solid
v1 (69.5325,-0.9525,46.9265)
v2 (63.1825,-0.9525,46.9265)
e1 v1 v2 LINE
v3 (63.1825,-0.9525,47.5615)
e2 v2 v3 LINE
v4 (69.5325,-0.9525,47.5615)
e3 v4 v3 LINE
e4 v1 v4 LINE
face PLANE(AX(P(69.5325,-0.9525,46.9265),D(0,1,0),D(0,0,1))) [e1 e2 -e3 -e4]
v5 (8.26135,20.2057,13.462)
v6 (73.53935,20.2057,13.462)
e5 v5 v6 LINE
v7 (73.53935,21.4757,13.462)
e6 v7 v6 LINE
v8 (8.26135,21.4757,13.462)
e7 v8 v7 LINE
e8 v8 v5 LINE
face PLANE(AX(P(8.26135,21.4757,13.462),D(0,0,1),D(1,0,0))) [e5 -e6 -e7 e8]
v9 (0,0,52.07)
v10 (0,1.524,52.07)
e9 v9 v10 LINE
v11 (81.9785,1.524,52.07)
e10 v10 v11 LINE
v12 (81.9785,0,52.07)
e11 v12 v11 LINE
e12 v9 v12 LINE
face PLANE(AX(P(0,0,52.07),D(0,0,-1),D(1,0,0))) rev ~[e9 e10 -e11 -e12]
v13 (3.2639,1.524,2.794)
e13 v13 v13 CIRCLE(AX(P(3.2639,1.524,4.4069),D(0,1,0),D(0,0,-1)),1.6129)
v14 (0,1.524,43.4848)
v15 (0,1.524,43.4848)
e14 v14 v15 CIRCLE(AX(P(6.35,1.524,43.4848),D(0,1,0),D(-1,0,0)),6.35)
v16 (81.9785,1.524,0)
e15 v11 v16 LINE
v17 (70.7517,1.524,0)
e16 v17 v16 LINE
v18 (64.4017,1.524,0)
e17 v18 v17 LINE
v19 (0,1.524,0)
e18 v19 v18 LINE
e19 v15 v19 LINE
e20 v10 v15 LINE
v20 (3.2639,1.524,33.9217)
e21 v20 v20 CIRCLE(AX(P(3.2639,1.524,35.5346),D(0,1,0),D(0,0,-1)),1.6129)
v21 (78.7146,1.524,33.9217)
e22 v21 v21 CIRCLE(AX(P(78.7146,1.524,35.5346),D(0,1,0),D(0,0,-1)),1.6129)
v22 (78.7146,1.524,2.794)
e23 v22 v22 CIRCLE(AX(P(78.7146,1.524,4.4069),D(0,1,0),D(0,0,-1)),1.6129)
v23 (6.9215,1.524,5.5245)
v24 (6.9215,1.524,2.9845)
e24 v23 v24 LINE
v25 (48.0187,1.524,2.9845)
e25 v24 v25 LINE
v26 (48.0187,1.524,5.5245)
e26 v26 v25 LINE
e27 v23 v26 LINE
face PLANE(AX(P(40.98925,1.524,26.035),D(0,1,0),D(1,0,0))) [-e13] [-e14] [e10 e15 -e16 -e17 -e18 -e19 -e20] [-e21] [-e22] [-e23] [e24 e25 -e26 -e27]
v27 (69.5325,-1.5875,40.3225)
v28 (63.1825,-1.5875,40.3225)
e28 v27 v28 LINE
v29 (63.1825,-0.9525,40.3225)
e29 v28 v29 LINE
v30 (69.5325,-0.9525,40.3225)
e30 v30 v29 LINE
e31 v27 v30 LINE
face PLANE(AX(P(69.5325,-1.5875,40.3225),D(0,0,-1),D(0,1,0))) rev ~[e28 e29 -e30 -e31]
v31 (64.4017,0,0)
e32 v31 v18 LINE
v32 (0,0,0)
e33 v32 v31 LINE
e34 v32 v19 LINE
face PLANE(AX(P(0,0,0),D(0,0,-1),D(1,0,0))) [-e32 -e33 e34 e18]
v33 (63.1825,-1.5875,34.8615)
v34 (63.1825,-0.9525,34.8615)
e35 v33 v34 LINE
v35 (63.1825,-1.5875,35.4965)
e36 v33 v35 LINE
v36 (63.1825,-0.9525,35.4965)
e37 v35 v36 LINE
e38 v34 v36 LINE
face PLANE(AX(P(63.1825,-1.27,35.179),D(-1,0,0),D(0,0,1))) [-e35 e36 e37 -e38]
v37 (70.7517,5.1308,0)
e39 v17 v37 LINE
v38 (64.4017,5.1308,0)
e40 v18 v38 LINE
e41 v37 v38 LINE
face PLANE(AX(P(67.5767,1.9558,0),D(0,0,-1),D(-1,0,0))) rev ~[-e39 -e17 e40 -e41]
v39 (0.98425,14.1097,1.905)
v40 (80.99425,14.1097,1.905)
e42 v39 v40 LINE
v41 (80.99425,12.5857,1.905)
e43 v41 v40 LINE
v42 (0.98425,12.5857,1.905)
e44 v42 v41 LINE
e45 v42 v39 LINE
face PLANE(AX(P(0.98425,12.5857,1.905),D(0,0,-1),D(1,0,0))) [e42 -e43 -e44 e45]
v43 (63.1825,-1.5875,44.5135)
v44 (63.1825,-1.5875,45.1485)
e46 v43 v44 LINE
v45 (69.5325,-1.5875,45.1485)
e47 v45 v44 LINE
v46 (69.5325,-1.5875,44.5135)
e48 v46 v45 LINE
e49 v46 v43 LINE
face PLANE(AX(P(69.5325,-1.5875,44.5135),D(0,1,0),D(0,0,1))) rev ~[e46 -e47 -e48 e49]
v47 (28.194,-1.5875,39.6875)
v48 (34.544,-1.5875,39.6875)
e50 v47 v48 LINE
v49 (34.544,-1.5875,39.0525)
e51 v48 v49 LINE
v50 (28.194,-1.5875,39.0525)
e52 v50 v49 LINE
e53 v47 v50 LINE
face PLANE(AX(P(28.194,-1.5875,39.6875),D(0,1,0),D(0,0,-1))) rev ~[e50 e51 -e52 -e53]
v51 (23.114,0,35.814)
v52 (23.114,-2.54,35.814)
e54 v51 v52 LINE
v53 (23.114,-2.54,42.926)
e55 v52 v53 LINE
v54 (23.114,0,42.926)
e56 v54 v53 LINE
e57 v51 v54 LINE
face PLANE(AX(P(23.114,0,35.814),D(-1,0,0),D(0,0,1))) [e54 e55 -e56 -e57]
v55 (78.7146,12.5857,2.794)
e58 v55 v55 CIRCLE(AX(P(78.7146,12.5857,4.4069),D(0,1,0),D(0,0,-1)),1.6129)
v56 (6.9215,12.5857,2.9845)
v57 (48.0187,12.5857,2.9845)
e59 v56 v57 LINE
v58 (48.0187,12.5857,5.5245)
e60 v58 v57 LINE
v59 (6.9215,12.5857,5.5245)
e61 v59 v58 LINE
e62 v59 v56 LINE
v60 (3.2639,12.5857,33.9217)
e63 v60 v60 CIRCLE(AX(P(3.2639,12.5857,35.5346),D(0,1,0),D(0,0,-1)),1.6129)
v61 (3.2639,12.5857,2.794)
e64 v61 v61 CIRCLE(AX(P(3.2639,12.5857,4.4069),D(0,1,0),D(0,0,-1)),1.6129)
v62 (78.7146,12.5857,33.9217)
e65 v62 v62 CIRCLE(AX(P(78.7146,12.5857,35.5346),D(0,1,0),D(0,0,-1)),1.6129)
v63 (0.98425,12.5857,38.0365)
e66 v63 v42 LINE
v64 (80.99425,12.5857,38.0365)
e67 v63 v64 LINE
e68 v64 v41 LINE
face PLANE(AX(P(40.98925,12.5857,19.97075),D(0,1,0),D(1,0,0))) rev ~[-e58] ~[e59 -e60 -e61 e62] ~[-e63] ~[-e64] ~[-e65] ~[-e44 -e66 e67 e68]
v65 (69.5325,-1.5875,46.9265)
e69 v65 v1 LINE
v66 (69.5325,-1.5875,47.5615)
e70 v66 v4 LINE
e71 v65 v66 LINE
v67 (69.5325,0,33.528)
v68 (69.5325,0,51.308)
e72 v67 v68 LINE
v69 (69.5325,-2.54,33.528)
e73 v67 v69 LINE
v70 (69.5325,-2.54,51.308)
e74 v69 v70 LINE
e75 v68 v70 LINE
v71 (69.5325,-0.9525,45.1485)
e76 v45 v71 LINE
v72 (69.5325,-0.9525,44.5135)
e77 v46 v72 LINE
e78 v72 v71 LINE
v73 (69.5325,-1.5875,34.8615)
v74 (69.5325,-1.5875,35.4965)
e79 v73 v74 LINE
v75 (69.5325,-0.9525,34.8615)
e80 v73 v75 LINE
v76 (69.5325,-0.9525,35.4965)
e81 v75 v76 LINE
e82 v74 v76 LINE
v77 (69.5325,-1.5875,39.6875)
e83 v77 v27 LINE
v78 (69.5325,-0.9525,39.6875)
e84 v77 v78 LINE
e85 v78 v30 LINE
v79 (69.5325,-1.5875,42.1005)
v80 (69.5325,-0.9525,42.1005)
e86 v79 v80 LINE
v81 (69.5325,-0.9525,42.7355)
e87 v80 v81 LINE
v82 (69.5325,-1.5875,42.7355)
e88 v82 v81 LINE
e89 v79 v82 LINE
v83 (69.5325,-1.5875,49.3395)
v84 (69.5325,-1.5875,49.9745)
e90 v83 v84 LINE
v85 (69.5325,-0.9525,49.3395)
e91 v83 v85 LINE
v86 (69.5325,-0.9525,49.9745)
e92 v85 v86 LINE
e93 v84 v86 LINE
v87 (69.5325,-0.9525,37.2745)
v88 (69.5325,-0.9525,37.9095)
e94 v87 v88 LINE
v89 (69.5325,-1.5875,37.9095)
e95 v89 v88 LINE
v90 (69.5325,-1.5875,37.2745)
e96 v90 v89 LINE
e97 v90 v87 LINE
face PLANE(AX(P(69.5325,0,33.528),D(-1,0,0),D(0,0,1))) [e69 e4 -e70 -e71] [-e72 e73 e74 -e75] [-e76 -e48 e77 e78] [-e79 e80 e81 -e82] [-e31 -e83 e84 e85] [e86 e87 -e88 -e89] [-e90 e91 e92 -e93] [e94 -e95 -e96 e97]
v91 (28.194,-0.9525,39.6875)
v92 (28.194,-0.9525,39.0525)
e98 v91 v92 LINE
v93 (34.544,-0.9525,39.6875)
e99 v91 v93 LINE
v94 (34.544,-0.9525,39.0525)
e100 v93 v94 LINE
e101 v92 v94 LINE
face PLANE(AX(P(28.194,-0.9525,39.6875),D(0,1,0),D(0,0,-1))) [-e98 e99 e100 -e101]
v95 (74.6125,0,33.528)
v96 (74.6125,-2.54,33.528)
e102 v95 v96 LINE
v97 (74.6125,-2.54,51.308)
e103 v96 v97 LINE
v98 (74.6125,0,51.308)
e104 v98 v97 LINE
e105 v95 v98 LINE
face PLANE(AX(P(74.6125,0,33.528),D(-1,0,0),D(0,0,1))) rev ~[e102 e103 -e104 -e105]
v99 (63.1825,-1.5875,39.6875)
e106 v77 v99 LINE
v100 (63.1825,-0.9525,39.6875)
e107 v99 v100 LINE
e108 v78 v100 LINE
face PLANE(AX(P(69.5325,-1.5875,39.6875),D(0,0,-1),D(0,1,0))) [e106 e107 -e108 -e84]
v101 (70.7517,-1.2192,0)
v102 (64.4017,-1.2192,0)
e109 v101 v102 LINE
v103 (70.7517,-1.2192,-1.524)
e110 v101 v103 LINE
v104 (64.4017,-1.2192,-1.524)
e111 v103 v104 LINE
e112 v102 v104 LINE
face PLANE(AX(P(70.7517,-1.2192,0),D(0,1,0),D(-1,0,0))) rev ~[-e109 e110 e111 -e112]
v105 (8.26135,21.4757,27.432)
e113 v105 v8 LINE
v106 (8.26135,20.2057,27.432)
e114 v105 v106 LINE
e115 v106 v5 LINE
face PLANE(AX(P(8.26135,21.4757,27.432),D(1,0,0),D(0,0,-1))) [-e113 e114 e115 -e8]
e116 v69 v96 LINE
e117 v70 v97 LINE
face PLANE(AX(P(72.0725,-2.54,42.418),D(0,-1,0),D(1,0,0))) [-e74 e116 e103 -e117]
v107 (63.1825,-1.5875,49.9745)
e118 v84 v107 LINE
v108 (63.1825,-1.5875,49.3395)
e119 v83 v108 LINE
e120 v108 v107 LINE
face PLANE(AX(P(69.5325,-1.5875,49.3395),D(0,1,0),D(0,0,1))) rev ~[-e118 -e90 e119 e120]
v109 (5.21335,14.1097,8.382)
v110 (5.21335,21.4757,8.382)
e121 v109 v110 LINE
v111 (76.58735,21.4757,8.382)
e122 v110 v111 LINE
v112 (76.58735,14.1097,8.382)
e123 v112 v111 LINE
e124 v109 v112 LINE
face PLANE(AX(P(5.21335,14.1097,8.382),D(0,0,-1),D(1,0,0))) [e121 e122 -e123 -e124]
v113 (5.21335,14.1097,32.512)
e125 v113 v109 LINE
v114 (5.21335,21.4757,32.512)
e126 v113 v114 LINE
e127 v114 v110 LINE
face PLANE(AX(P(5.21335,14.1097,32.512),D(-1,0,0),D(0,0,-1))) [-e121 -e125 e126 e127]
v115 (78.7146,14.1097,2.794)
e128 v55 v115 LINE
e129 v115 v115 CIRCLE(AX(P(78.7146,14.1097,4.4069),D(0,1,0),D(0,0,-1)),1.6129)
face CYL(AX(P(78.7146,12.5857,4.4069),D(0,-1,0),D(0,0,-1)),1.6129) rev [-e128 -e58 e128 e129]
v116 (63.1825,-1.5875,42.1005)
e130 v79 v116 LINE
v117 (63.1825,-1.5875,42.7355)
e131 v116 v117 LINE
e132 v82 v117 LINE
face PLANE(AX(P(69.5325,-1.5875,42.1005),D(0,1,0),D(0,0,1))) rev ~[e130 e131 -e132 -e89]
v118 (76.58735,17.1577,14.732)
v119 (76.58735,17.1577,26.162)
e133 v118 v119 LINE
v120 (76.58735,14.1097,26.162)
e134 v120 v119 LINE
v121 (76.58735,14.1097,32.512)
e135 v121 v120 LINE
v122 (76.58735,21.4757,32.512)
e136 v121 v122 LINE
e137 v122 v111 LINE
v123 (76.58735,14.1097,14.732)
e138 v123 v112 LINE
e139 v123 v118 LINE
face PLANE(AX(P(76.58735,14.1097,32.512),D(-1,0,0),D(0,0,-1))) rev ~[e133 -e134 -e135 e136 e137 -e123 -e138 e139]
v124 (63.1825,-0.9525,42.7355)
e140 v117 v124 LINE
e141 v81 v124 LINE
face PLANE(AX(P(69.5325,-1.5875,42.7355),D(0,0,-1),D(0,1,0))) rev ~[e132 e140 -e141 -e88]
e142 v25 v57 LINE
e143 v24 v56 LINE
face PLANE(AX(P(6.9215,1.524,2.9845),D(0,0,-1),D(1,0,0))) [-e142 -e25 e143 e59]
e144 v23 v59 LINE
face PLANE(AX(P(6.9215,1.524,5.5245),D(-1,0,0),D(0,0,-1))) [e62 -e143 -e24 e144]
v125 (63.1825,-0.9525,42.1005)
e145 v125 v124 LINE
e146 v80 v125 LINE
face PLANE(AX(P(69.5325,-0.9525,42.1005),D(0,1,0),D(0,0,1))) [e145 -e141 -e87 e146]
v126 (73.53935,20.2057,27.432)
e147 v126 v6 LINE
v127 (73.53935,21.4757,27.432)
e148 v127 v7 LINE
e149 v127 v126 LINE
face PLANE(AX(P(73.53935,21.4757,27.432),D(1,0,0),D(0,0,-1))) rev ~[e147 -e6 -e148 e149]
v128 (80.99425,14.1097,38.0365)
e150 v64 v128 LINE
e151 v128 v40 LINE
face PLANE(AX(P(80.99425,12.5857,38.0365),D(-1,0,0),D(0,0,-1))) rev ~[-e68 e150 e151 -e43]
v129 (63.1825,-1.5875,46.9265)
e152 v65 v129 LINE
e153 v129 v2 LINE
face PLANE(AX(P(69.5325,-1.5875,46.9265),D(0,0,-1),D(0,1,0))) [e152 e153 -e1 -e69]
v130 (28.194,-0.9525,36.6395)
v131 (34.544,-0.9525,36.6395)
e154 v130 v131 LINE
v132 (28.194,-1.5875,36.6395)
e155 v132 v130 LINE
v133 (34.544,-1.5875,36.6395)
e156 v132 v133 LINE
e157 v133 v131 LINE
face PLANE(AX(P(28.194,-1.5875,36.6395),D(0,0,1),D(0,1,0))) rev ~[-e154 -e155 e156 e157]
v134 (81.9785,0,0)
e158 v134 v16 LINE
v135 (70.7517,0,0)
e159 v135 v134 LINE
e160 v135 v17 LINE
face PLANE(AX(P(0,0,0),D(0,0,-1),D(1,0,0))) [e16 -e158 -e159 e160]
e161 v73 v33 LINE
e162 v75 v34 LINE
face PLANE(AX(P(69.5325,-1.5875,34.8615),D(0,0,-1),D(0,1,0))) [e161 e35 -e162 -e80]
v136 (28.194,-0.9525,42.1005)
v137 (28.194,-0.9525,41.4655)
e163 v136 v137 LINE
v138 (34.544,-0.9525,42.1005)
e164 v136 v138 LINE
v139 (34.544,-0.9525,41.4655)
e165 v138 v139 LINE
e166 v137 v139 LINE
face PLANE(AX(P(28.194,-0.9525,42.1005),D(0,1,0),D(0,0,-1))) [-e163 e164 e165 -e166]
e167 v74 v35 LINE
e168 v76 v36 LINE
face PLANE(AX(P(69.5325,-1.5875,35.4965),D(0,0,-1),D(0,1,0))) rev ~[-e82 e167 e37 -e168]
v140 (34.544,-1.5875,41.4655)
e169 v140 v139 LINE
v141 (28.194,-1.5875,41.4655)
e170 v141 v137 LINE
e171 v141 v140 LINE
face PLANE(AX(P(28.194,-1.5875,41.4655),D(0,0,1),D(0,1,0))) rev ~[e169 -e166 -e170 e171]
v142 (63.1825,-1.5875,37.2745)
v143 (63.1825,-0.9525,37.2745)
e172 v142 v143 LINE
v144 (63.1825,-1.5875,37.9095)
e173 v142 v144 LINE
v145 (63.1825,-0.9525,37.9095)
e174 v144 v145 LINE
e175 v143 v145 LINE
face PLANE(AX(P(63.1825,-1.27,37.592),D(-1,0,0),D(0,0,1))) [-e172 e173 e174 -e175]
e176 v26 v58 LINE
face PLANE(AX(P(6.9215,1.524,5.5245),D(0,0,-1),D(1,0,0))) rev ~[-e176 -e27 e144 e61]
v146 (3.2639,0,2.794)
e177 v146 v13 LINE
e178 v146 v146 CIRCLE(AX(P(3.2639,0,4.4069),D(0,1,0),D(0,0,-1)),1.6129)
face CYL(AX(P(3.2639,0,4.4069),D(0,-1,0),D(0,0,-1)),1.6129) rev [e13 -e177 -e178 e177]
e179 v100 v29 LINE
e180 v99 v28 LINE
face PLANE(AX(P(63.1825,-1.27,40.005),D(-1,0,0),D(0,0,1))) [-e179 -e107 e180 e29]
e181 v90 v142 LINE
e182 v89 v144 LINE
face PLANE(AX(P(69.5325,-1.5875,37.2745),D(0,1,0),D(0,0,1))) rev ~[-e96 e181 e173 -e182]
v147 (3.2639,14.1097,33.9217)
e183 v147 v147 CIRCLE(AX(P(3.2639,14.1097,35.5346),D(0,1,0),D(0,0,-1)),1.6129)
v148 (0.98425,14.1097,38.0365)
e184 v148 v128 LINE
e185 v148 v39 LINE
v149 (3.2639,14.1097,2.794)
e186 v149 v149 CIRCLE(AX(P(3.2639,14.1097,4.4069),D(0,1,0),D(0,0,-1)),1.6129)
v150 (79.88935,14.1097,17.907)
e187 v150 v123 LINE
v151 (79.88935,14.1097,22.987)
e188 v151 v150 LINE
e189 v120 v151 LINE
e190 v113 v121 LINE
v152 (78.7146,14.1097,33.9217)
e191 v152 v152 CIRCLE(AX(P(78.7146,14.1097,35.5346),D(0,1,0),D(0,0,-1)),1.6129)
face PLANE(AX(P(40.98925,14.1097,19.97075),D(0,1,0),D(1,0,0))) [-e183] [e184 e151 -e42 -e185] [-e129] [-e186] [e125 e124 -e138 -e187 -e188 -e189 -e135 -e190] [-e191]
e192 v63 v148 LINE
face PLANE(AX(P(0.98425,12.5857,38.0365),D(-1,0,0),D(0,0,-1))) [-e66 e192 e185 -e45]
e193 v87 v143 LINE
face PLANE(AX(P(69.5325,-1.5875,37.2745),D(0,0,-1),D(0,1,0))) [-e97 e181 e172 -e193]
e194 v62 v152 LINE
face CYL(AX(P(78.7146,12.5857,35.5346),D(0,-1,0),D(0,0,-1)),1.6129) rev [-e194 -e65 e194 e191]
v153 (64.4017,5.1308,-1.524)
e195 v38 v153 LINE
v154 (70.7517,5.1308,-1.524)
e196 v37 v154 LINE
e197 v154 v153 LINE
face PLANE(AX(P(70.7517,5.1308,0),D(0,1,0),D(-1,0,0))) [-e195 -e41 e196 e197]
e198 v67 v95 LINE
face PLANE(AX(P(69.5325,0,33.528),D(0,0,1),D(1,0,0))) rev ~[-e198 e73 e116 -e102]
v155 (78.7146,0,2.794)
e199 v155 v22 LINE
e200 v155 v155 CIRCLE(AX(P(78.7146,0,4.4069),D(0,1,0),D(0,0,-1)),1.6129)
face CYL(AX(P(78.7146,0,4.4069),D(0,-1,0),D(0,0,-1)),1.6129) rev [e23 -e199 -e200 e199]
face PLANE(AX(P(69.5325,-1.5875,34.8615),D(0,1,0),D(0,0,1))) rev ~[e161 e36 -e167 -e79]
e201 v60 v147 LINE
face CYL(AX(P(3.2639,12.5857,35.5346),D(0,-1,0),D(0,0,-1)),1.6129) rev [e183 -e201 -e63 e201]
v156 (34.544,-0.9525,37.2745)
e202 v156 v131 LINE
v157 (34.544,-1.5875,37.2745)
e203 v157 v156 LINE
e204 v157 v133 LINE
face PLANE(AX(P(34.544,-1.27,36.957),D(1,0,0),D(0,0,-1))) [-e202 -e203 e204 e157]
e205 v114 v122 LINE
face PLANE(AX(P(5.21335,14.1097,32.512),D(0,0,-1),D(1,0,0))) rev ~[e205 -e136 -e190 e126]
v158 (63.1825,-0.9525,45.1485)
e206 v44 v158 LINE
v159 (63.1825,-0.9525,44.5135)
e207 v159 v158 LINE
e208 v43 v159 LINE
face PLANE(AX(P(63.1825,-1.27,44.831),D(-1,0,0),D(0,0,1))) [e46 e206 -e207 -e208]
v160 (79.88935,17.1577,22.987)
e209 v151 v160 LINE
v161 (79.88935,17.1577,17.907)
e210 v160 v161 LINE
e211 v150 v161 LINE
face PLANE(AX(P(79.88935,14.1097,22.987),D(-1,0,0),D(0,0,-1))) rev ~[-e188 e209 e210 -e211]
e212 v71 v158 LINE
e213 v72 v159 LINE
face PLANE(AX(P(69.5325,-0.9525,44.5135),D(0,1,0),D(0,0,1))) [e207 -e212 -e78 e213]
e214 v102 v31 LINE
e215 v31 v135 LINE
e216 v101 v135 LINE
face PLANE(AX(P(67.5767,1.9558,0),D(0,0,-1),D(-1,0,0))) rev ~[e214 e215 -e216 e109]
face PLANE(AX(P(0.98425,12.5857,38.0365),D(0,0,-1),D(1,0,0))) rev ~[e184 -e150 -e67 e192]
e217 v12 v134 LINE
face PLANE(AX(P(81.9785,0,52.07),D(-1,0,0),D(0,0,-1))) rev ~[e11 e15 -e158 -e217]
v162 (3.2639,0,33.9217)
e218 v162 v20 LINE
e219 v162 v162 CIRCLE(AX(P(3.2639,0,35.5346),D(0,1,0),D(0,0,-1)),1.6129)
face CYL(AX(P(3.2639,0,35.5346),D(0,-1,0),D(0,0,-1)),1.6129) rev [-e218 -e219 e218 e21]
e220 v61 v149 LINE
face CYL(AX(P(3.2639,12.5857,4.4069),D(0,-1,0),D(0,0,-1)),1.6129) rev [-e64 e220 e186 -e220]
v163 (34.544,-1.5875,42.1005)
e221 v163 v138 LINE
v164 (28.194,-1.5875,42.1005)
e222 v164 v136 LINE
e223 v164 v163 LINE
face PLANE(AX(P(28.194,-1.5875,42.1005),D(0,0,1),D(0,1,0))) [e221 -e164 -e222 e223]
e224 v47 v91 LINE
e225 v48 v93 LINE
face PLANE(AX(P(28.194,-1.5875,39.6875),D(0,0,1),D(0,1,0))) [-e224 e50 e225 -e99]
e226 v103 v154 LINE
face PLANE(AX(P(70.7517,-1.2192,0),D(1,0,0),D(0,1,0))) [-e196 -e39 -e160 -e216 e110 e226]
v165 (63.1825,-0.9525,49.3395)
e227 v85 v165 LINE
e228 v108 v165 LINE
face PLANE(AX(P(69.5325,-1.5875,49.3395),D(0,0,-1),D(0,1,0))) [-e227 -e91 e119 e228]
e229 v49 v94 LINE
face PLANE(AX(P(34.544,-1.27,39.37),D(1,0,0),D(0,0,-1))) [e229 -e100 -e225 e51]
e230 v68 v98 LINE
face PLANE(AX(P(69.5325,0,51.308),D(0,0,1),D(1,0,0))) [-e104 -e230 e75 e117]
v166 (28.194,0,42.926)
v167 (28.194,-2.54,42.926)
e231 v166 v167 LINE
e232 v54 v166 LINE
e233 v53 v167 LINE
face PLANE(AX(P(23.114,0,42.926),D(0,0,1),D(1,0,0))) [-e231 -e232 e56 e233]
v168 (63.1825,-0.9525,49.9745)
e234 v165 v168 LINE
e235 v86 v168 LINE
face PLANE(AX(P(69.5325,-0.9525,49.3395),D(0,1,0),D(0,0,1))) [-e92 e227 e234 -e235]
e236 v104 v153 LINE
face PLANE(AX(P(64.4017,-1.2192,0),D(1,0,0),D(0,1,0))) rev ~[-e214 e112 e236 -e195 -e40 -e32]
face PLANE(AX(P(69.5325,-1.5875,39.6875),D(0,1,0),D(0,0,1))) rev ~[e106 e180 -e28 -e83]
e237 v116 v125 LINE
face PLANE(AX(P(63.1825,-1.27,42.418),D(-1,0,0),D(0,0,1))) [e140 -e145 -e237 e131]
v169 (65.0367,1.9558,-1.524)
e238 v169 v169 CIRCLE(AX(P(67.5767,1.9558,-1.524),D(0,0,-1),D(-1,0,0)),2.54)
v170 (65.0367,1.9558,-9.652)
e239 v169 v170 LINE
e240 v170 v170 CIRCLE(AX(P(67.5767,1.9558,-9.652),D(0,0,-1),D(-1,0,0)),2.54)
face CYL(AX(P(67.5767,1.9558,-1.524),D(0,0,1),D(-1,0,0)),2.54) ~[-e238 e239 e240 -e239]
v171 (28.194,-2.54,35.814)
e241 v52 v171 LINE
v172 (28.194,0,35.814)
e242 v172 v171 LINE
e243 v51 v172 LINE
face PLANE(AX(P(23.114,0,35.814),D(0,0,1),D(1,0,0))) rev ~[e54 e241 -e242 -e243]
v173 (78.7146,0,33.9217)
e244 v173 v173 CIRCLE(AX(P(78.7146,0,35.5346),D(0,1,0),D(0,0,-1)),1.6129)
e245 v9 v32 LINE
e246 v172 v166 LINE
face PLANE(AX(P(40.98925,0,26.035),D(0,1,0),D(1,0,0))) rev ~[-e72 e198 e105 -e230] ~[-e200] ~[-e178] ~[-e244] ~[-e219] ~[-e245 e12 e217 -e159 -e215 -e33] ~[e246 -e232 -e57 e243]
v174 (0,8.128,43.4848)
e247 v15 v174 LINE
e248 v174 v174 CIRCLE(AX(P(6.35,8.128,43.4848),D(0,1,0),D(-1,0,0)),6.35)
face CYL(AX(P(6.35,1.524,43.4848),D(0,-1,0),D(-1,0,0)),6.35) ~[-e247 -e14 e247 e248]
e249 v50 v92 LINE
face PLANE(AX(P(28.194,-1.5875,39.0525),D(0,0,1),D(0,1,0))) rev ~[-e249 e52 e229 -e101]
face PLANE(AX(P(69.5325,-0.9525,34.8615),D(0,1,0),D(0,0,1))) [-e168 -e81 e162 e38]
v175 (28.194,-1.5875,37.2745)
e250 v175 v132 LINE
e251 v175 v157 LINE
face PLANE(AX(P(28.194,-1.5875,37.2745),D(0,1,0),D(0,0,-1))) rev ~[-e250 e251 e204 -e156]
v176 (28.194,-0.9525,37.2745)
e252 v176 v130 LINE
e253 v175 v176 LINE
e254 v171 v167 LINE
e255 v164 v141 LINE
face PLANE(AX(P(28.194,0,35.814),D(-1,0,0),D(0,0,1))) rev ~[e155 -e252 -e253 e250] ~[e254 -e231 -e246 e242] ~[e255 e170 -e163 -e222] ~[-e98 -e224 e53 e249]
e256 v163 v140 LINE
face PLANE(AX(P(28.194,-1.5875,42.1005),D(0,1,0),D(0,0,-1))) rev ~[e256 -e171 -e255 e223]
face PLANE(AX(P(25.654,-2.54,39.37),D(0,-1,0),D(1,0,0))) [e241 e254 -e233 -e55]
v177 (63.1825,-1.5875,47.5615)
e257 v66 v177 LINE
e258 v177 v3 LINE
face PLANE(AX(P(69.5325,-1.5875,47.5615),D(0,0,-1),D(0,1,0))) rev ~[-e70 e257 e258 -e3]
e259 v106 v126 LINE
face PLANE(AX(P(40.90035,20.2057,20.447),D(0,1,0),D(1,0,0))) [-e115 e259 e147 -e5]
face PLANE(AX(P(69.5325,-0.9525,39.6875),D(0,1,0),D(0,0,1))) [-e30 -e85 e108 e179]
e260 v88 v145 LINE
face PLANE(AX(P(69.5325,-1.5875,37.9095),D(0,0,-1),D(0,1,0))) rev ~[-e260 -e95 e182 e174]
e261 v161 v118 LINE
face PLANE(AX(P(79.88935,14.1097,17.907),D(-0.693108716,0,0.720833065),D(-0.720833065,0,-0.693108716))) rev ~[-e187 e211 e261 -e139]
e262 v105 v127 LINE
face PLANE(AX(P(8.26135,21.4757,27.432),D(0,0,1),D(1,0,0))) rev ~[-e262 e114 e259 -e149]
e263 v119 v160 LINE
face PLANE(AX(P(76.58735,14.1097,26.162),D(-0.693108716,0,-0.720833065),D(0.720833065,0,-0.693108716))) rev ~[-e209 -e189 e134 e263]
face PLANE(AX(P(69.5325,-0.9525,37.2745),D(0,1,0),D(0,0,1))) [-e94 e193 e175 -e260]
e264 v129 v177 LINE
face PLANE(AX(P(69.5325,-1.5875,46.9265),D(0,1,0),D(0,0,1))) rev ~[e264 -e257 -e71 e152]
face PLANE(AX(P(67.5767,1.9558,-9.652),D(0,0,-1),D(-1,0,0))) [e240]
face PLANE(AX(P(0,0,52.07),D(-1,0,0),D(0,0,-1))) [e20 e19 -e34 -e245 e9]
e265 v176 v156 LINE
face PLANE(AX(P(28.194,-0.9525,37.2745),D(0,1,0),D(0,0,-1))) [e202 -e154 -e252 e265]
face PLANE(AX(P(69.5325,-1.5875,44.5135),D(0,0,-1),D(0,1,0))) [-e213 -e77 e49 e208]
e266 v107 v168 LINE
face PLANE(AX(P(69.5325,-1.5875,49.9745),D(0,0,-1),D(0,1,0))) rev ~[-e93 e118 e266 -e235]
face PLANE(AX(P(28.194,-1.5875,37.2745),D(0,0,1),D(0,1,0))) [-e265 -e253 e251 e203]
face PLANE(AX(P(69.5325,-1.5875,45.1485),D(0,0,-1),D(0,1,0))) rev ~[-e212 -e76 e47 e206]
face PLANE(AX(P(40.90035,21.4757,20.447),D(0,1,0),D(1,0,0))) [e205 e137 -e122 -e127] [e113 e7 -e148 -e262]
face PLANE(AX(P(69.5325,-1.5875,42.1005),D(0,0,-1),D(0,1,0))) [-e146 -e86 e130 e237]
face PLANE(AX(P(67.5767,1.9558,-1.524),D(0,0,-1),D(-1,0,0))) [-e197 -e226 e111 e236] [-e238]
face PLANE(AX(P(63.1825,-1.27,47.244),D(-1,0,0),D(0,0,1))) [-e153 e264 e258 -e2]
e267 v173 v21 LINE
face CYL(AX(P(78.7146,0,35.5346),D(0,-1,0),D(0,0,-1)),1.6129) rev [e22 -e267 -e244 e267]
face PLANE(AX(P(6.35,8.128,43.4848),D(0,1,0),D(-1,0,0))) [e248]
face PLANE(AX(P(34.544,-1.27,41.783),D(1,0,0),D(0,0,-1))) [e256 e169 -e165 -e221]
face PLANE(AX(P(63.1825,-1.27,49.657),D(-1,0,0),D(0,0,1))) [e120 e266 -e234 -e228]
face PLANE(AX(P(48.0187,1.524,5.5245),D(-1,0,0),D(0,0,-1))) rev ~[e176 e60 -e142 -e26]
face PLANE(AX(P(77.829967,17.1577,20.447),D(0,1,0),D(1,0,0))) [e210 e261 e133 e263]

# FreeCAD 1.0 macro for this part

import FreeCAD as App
import Part
import Sketcher
from FreeCAD import Vector
Q = App.Units.Quantity

doc = App.newDocument("Part")
body = doc.addObject("PartDesign::Body", "Body")

# Sketch on XZ plane
sketch1 = body.newObject("Sketcher::SketchObject", "Sketch")
sketch1.AttachmentSupport = (doc.getObject("XZ_Plane"), [""])
sketch1.MapMode = "FlatFace"
sketch1.addGeometry([
    Part.LineSegment(Vector(0, 0, 0), Vector(0, 52.1, 0)),  # 0
    Part.LineSegment(Vector(0, 52.1, 0), Vector(82, 52.1, 0)),  # 1
    Part.LineSegment(Vector(82, 52.1, 0), Vector(82, 0, 0)),  # 2
    Part.LineSegment(Vector(82, 0, 0), Vector(0, 0, 0)),  # 3
    Part.Circle(Vector(3.3, 35.5, 0), Vector(0, 0, 1), 1.6),  # 4
    Part.Circle(Vector(78.7, 35.5, 0), Vector(0, 0, 1), 1.6),  # 5
    Part.Circle(Vector(3.3, 4.4, 0), Vector(0, 0, 1), 1.6),  # 6
    Part.Circle(Vector(78.7, 4.4, 0), Vector(0, 0, 1), 1.6),  # 7
], False)
sketch1.addConstraint([
    Sketcher.Constraint("Coincident", 0, 2, 1, 1),
    Sketcher.Constraint("Coincident", 1, 2, 2, 1),
    Sketcher.Constraint("Coincident", 2, 2, 3, 1),
    Sketcher.Constraint("Coincident", 3, 2, 0, 1),
    Sketcher.Constraint("Vertical", 0),
    Sketcher.Constraint("Horizontal", 1),
    Sketcher.Constraint("Vertical", 2),
    Sketcher.Constraint("Horizontal", 3),
    Sketcher.Constraint("Coincident", 3, 2, -1, 1),
    Sketcher.Constraint("Equal", 4, 5),
    Sketcher.Constraint("Equal", 5, 6),
    Sketcher.Constraint("Equal", 6, 7),
    Sketcher.Constraint("Horizontal", 4, 3, 5, 3),
    Sketcher.Constraint("Horizontal", 6, 3, 7, 3),
    Sketcher.Constraint("Vertical", 4, 3, 6, 3),
    Sketcher.Constraint("Vertical", 5, 3, 7, 3),
    Sketcher.Constraint("Diameter", 4, Q("0.127 in")),
    Sketcher.Constraint("DistanceY", 0, 1, 0, 2, Q("2.05 in")),
    Sketcher.Constraint("DistanceX", 1, 1, 1, 2, Q("3.2275 in")),
    Sketcher.Constraint("DistanceY", -1, 1, 4, 3, Q("1.399 in")),
    Sketcher.Constraint("DistanceX", -1, 1, 5, 3, Q("3.099 in")),
    Sketcher.Constraint("DistanceX", 4, 3, 1, 2, Q("3.099 in")),
    Sketcher.Constraint("DistanceY", -1, 1, 6, 3, Q("0.1735 in")),
])
pad1 = body.newObject("PartDesign::Pad", "Pad")
pad1.Profile = sketch1
pad1.Length = Q("0.06 in")
pad1.Reversed = True

# Sketch on XY plane
sketch2 = body.newObject("Sketcher::SketchObject", "Sketch001")
sketch2.AttachmentSupport = (doc.getObject("XY_Plane"), [""])
sketch2.MapMode = "FlatFace"
sketch2.addGeometry([
    Part.LineSegment(Vector(71, 5, 0), Vector(71, -1, 0)),
    Part.LineSegment(Vector(71, -1, 0), Vector(64, -1, 0)),
    Part.LineSegment(Vector(64, -1, 0), Vector(64, 5, 0)),
    Part.LineSegment(Vector(64, 5, 0), Vector(71, 5, 0)),
], False)
sketch2.addConstraint([
    Sketcher.Constraint("Coincident", 0, 2, 1, 1),
    Sketcher.Constraint("Coincident", 1, 2, 2, 1),
    Sketcher.Constraint("Coincident", 2, 2, 3, 1),
    Sketcher.Constraint("Coincident", 3, 2, 0, 1),
    Sketcher.Constraint("Vertical", 0),
    Sketcher.Constraint("Horizontal", 1),
    Sketcher.Constraint("Vertical", 2),
    Sketcher.Constraint("Horizontal", 3),
    Sketcher.Constraint("Equal", 3, 0),
    Sketcher.Constraint("DistanceX", 1, 2, 1, 1, Q("0.25 in")),
    Sketcher.Constraint("DistanceY", 0, 2, -1, 1, Q("0.048 in")),
    Sketcher.Constraint("DistanceX", -1, 1, 0, 2, Q("2.7855 in")),
])
pad2 = body.newObject("PartDesign::Pad", "Pad001")
pad2.Profile = sketch2
pad2.Length = Q("0.06 in")
pad2.Reversed = True

# Sketch on XY plane
sketch3 = body.newObject("Sketcher::SketchObject", "Sketch002")
sketch3.AttachmentSupport = (doc.getObject("XY_Plane"), [""])
sketch3.MapMode = "FlatFace"
sketch3.AttachmentOffset = App.Placement(Vector(0, 0, -0.06 * 25.4), App.Rotation())
sketch3.addGeometry(Part.Circle(Vector(67.6, 2, 0), Vector(0, 0, 1), 2.5), False)
sketch3.addConstraint([
    Sketcher.Constraint("Diameter", 0, Q("0.2 in")),
    Sketcher.Constraint("DistanceY", -1, 1, 0, 3, Q("0.077 in")),
    Sketcher.Constraint("DistanceX", -1, 1, 0, 3, Q("2.6605 in")),
])
pad3 = body.newObject("PartDesign::Pad", "Pad002")
pad3.Profile = sketch3
pad3.Length = Q("0.32 in")
pad3.Reversed = True

# Sketch on XZ plane
sketch4 = body.newObject("Sketcher::SketchObject", "Sketch003")
sketch4.AttachmentSupport = (doc.getObject("XZ_Plane"), [""])
sketch4.MapMode = "FlatFace"
sketch4.AttachmentOffset = App.Placement(Vector(0, 0, -0.06 * 25.4), App.Rotation())
sketch4.addGeometry([
    Part.LineSegment(Vector(6.9, 3, 0), Vector(6.9, 5.5, 0)),
    Part.LineSegment(Vector(6.9, 5.5, 0), Vector(48, 5.5, 0)),
    Part.LineSegment(Vector(48, 5.5, 0), Vector(48, 3, 0)),
    Part.LineSegment(Vector(48, 3, 0), Vector(6.9, 3, 0)),
], False)
sketch4.addConstraint([
    Sketcher.Constraint("Coincident", 0, 2, 1, 1),
    Sketcher.Constraint("Coincident", 1, 2, 2, 1),
    Sketcher.Constraint("Coincident", 2, 2, 3, 1),
    Sketcher.Constraint("Coincident", 3, 2, 0, 1),
    Sketcher.Constraint("Vertical", 0),
    Sketcher.Constraint("Horizontal", 1),
    Sketcher.Constraint("Vertical", 2),
    Sketcher.Constraint("Horizontal", 3),
    Sketcher.Constraint("DistanceY", 0, 1, 0, 2, Q("0.1 in")),
    Sketcher.Constraint("DistanceX", 1, 1, 1, 2, Q("1.618 in")),
    Sketcher.Constraint("DistanceX", -1, 1, 0, 2, Q("0.2725 in")),
    Sketcher.Constraint("DistanceY", -1, 1, 0, 2, Q("0.2175 in")),
])
pad4 = body.newObject("PartDesign::Pad", "Pad003")
pad4.Profile = sketch4
pad4.Length = Q("0.4355 in")
pad4.Reversed = True

# Sketch on XZ plane
sketch5 = body.newObject("Sketcher::SketchObject", "Sketch004")
sketch5.AttachmentSupport = (doc.getObject("XZ_Plane"), [""])
sketch5.MapMode = "FlatFace"
sketch5.AttachmentOffset = App.Placement(Vector(0, 0, -0.4955 * 25.4), App.Rotation())
sketch5.addGeometry([
    Part.LineSegment(Vector(1, 1.9, 0), Vector(1, 38, 0)),  # 0
    Part.LineSegment(Vector(1, 38, 0), Vector(81, 38, 0)),  # 1
    Part.LineSegment(Vector(81, 38, 0), Vector(81, 1.9, 0)),  # 2
    Part.LineSegment(Vector(81, 1.9, 0), Vector(1, 1.9, 0)),  # 3
    Part.Circle(Vector(3.3, 35.5, 0), Vector(0, 0, 1), 1.6),  # 4
    Part.Circle(Vector(78.7, 35.5, 0), Vector(0, 0, 1), 1.6),  # 5
    Part.Circle(Vector(3.3, 4.4, 0), Vector(0, 0, 1), 1.6),  # 6
    Part.Circle(Vector(78.7, 4.4, 0), Vector(0, 0, 1), 1.6),  # 7
], False)
sketch5.addConstraint([
    Sketcher.Constraint("Coincident", 0, 2, 1, 1),
    Sketcher.Constraint("Coincident", 1, 2, 2, 1),
    Sketcher.Constraint("Coincident", 2, 2, 3, 1),
    Sketcher.Constraint("Coincident", 3, 2, 0, 1),
    Sketcher.Constraint("Vertical", 0),
    Sketcher.Constraint("Horizontal", 1),
    Sketcher.Constraint("Vertical", 2),
    Sketcher.Constraint("Horizontal", 3),
    Sketcher.Constraint("Equal", 4, 5),
    Sketcher.Constraint("Equal", 5, 6),
    Sketcher.Constraint("Equal", 6, 7),
    Sketcher.Constraint("Horizontal", 4, 3, 5, 3),
    Sketcher.Constraint("Horizontal", 6, 3, 7, 3),
    Sketcher.Constraint("Vertical", 4, 3, 6, 3),
    Sketcher.Constraint("Vertical", 5, 3, 7, 3),
    Sketcher.Constraint("Diameter", 4, Q("0.127 in")),
    Sketcher.Constraint("DistanceX", 1, 1, 1, 2, Q("3.15 in")),
    Sketcher.Constraint("DistanceY", 0, 1, 0, 2, Q("1.4225 in")),
    Sketcher.Constraint("DistanceY", -1, 1, 4, 3, Q("1.399 in")),
    Sketcher.Constraint("DistanceX", -1, 1, 5, 3, Q("3.099 in")),
    Sketcher.Constraint("DistanceY", -1, 1, 2, 2, Q("0.075 in")),
    Sketcher.Constraint("DistanceY", 6, 3, 0, 2, Q("1.324 in")),
    Sketcher.Constraint("DistanceX", -1, 1, 4, 3, Q("0.1285 in")),
    Sketcher.Constraint("DistanceX", -1, 1, 0, 2, Q("0.98425 mm")),
])
pad5 = body.newObject("PartDesign::Pad", "Pad004")
pad5.Profile = sketch5
pad5.Length = Q("0.06 in")
pad5.Reversed = True

# Sketch on XZ plane
sketch6 = body.newObject("Sketcher::SketchObject", "Sketch005")
sketch6.AttachmentSupport = (doc.getObject("XZ_Plane"), [""])
sketch6.MapMode = "FlatFace"
sketch6.AttachmentOffset = App.Placement(Vector(0, 0, -0.5555 * 25.4), App.Rotation())
sketch6.addGeometry([
    Part.LineSegment(Vector(5, 8, 0), Vector(5, 33, 0)),
    Part.LineSegment(Vector(5, 33, 0), Vector(77, 33, 0)),
    Part.LineSegment(Vector(77, 33, 0), Vector(77, 8, 0)),
    Part.LineSegment(Vector(77, 8, 0), Vector(5, 8, 0)),
], False)
sketch6.addConstraint([
    Sketcher.Constraint("Coincident", 0, 2, 1, 1),
    Sketcher.Constraint("Coincident", 1, 2, 2, 1),
    Sketcher.Constraint("Coincident", 2, 2, 3, 1),
    Sketcher.Constraint("Coincident", 3, 2, 0, 1),
    Sketcher.Constraint("Vertical", 0),
    Sketcher.Constraint("Horizontal", 1),
    Sketcher.Constraint("Vertical", 2),
    Sketcher.Constraint("Horizontal", 3),
    Sketcher.Constraint("DistanceX", 1, 1, 1, 2, Q("2.81 in")),
    Sketcher.Constraint("DistanceY", 0, 1, 0, 2, Q("0.95 in")),
    Sketcher.Constraint("DistanceY", -1, 1, 0, 2, Q("1.28 in")),
    Sketcher.Constraint("DistanceX", -1, 1, 0, 2, Q("5.21335 mm")),
])
pad6 = body.newObject("PartDesign::Pad", "Pad005")
pad6.Profile = sketch6
pad6.Length = Q("0.29 in")
pad6.Reversed = True

# Sketch on XZ plane
sketch7 = body.newObject("Sketcher::SketchObject", "Sketch006")
sketch7.AttachmentSupport = (doc.getObject("XZ_Plane"), [""])
sketch7.MapMode = "FlatFace"
sketch7.AttachmentOffset = App.Placement(Vector(0, 0, -0.8455 * 25.4), App.Rotation())
sketch7.addGeometry([
    Part.LineSegment(Vector(8, 13, 0), Vector(8, 27, 0)),
    Part.LineSegment(Vector(8, 27, 0), Vector(74, 27, 0)),
    Part.LineSegment(Vector(74, 27, 0), Vector(74, 13, 0)),
    Part.LineSegment(Vector(74, 13, 0), Vector(8, 13, 0)),
], False)
sketch7.addConstraint([
    Sketcher.Constraint("Coincident", 0, 2, 1, 1),
    Sketcher.Constraint("Coincident", 1, 2, 2, 1),
    Sketcher.Constraint("Coincident", 2, 2, 3, 1),
    Sketcher.Constraint("Coincident", 3, 2, 0, 1),
    Sketcher.Constraint("Vertical", 0),
    Sketcher.Constraint("Horizontal", 1),
    Sketcher.Constraint("Vertical", 2),
    Sketcher.Constraint("Horizontal", 3),
    Sketcher.Constraint("DistanceX", 1, 1, 1, 2, Q("2.57 in")),
    Sketcher.Constraint("DistanceY", 0, 1, 0, 2, Q("0.55 in")),
    Sketcher.Constraint("DistanceY", -1, 1, 0, 2, Q("1.08 in")),
    Sketcher.Constraint("DistanceX", -1, 1, 0, 2, Q("8.26135 mm")),
])
pocket1 = body.newObject("PartDesign::Pocket", "Pocket")
pocket1.Profile = sketch7
pocket1.Length = Q("0.05 in")
pocket1.Reversed = True

# Sketch on XZ plane
sketch8 = body.newObject("Sketcher::SketchObject", "Sketch007")
sketch8.AttachmentSupport = (doc.getObject("XZ_Plane"), [""])
sketch8.MapMode = "FlatFace"
sketch8.AttachmentOffset = App.Placement(Vector(0, 0, -0.5555 * 25.4), App.Rotation())
sketch8.addGeometry([
    Part.LineSegment(Vector(76.6, 14.7, 0), Vector(76.6, 26.2, 0)),
    Part.LineSegment(Vector(76.6, 26.2, 0), Vector(79.9, 23, 0)),
    Part.LineSegment(Vector(79.9, 23, 0), Vector(79.9, 17.9, 0)),
    Part.LineSegment(Vector(79.9, 17.9, 0), Vector(76.6, 14.7, 0)),
], False)
sketch8.addConstraint([
    Sketcher.Constraint("Coincident", 0, 2, 1, 1),
    Sketcher.Constraint("Coincident", 1, 2, 2, 1),
    Sketcher.Constraint("Coincident", 2, 2, 3, 1),
    Sketcher.Constraint("Coincident", 3, 2, 0, 1),
    Sketcher.Constraint("Vertical", 0),
    Sketcher.Constraint("Vertical", 2),
    Sketcher.Constraint("Equal", 1, 3),
    Sketcher.Constraint("DistanceY", 2, 2, 2, 1, Q("0.2 in")),
    Sketcher.Constraint("DistanceY", 0, 1, 0, 2, Q("0.45 in")),
    Sketcher.Constraint("DistanceY", -1, 1, 0, 2, Q("1.03 in")),
    Sketcher.Constraint("DistanceX", 0, 2, 1, 2, Q("0.13 in")),
    Sketcher.Constraint("DistanceX", -1, 1, 0, 2, Q("76.58735 mm")),
])
pad7 = body.newObject("PartDesign::Pad", "Pad006")
pad7.Profile = sketch8
pad7.Length = Q("0.12 in")
pad7.Reversed = True

# Sketch on XZ plane
sketch9 = body.newObject("Sketcher::SketchObject", "Sketch008")
sketch9.AttachmentSupport = (doc.getObject("XZ_Plane"), [""])
sketch9.MapMode = "FlatFace"
sketch9.AttachmentOffset = App.Placement(Vector(0, 0, -0.06 * 25.4), App.Rotation())
sketch9.addGeometry(Part.Circle(Vector(6, 43, 0), Vector(0, 0, 1), 6), False)
sketch9.addConstraint([
    Sketcher.Constraint("Diameter", 0, Q("0.5 in")),
    Sketcher.Constraint("DistanceX", -1, 1, 0, 3, Q("0.25 in")),
    Sketcher.Constraint("DistanceY", -1, 1, 0, 3, Q("1.712 in")),
])
pad8 = body.newObject("PartDesign::Pad", "Pad007")
pad8.Profile = sketch9
pad8.Length = Q("0.26 in")
pad8.Reversed = True

# Sketch on XZ plane
sketch10 = body.newObject("Sketcher::SketchObject", "Sketch009")
sketch10.AttachmentSupport = (doc.getObject("XZ_Plane"), [""])
sketch10.MapMode = "FlatFace"
sketch10.addGeometry([
    Part.LineSegment(Vector(70, 51, 0), Vector(70, 34, 0)),
    Part.LineSegment(Vector(70, 34, 0), Vector(75, 34, 0)),
    Part.LineSegment(Vector(75, 34, 0), Vector(75, 51, 0)),
    Part.LineSegment(Vector(75, 51, 0), Vector(70, 51, 0)),
], False)
sketch10.addConstraint([
    Sketcher.Constraint("Coincident", 0, 2, 1, 1),
    Sketcher.Constraint("Coincident", 1, 2, 2, 1),
    Sketcher.Constraint("Coincident", 2, 2, 3, 1),
    Sketcher.Constraint("Coincident", 3, 2, 0, 1),
    Sketcher.Constraint("Vertical", 0),
    Sketcher.Constraint("Horizontal", 1),
    Sketcher.Constraint("Vertical", 2),
    Sketcher.Constraint("Horizontal", 3),
    Sketcher.Constraint("DistanceX", 1, 1, 1, 2, Q("0.2 in")),
    Sketcher.Constraint("DistanceY", 0, 2, 0, 1, Q("0.7 in")),
    Sketcher.Constraint("DistanceY", -1, 1, 0, 2, Q("1.32 in")),
    Sketcher.Constraint("DistanceX", -1, 1, 1, 2, Q("2.9375 in")),
])
pad9 = body.newObject("PartDesign::Pad", "Pad008")
pad9.Profile = sketch10
pad9.Length = Q("0.1 in")

# Sketch on YZ plane
sketch11 = body.newObject("Sketcher::SketchObject", "Sketch010")
sketch11.AttachmentSupport = (doc.getObject("YZ_Plane"), [""])
sketch11.MapMode = "FlatFace"
sketch11.AttachmentOffset = App.Placement(Vector(0, 0, 2.7375 * 25.4), App.Rotation())
sketch11.addGeometry([
    Part.LineSegment(Vector(-1, 37.3, 0), Vector(-1.6, 37.3, 0)),  # 0
    Part.LineSegment(Vector(-1.6, 37.3, 0), Vector(-1.6, 37.9, 0)),  # 1
    Part.LineSegment(Vector(-1.6, 37.9, 0), Vector(-1, 37.9, 0)),  # 2
    Part.LineSegment(Vector(-1, 37.9, 0), Vector(-1, 37.3, 0)),  # 3
    Part.LineSegment(Vector(-1, 34.9, 0), Vector(-1.6, 34.9, 0)),  # 4
    Part.LineSegment(Vector(-1.6, 34.9, 0), Vector(-1.6, 35.5, 0)),  # 5
    Part.LineSegment(Vector(-1.6, 35.5, 0), Vector(-1, 35.5, 0)),  # 6
    Part.LineSegment(Vector(-1, 35.5, 0), Vector(-1, 34.9, 0)),  # 7
    Part.LineSegment(Vector(-1, 39.7, 0), Vector(-1.6, 39.7, 0)),  # 8
    Part.LineSegment(Vector(-1.6, 39.7, 0), Vector(-1.6, 40.3, 0)),  # 9
    Part.LineSegment(Vector(-1.6, 40.3, 0), Vector(-1, 40.3, 0)),  # 10
    Part.LineSegment(Vector(-1, 40.3, 0), Vector(-1, 39.7, 0)),  # 11
    Part.LineSegment(Vector(-1, 42.1, 0), Vector(-1.6, 42.1, 0)),  # 12
    Part.LineSegment(Vector(-1.6, 42.1, 0), Vector(-1.6, 42.7, 0)),  # 13
    Part.LineSegment(Vector(-1.6, 42.7, 0), Vector(-1, 42.7, 0)),  # 14
    Part.LineSegment(Vector(-1, 42.7, 0), Vector(-1, 42.1, 0)),  # 15
    Part.LineSegment(Vector(-1, 44.5, 0), Vector(-1.6, 44.5, 0)),  # 16
    Part.LineSegment(Vector(-1.6, 44.5, 0), Vector(-1.6, 45.1, 0)),  # 17
    Part.LineSegment(Vector(-1.6, 45.1, 0), Vector(-1, 45.1, 0)),  # 18
    Part.LineSegment(Vector(-1, 45.1, 0), Vector(-1, 44.5, 0)),  # 19
    Part.LineSegment(Vector(-1, 46.9, 0), Vector(-1.6, 46.9, 0)),  # 20
    Part.LineSegment(Vector(-1.6, 46.9, 0), Vector(-1.6, 47.6, 0)),  # 21
    Part.LineSegment(Vector(-1.6, 47.6, 0), Vector(-1, 47.6, 0)),  # 22
    Part.LineSegment(Vector(-1, 47.6, 0), Vector(-1, 46.9, 0)),  # 23
    Part.LineSegment(Vector(-1, 49.3, 0), Vector(-1.6, 49.3, 0)),  # 24
    Part.LineSegment(Vector(-1.6, 49.3, 0), Vector(-1.6, 50, 0)),  # 25
    Part.LineSegment(Vector(-1.6, 50, 0), Vector(-1, 50, 0)),  # 26
    Part.LineSegment(Vector(-1, 50, 0), Vector(-1, 49.3, 0)),  # 27
], False)
sketch11.addConstraint([
    Sketcher.Constraint("Coincident", 0, 2, 1, 1),
    Sketcher.Constraint("Coincident", 1, 2, 2, 1),
    Sketcher.Constraint("Coincident", 2, 2, 3, 1),
    Sketcher.Constraint("Coincident", 3, 2, 0, 1),
    Sketcher.Constraint("Coincident", 4, 2, 5, 1),
    Sketcher.Constraint("Coincident", 5, 2, 6, 1),
    Sketcher.Constraint("Coincident", 6, 2, 7, 1),
    Sketcher.Constraint("Coincident", 7, 2, 4, 1),
    Sketcher.Constraint("Coincident", 8, 2, 9, 1),
    Sketcher.Constraint("Coincident", 9, 2, 10, 1),
    Sketcher.Constraint("Coincident", 10, 2, 11, 1),
    Sketcher.Constraint("Coincident", 11, 2, 8, 1),
    Sketcher.Constraint("Coincident", 12, 2, 13, 1),
    Sketcher.Constraint("Coincident", 13, 2, 14, 1),
    Sketcher.Constraint("Coincident", 14, 2, 15, 1),
    Sketcher.Constraint("Coincident", 15, 2, 12, 1),
    Sketcher.Constraint("Coincident", 16, 2, 17, 1),
    Sketcher.Constraint("Coincident", 17, 2, 18, 1),
    Sketcher.Constraint("Coincident", 18, 2, 19, 1),
    Sketcher.Constraint("Coincident", 19, 2, 16, 1),
    Sketcher.Constraint("Coincident", 20, 2, 21, 1),
    Sketcher.Constraint("Coincident", 21, 2, 22, 1),
    Sketcher.Constraint("Coincident", 22, 2, 23, 1),
    Sketcher.Constraint("Coincident", 23, 2, 20, 1),
    Sketcher.Constraint("Coincident", 24, 2, 25, 1),
    Sketcher.Constraint("Coincident", 25, 2, 26, 1),
    Sketcher.Constraint("Coincident", 26, 2, 27, 1),
    Sketcher.Constraint("Coincident", 27, 2, 24, 1),
    Sketcher.Constraint("Horizontal", 0),
    Sketcher.Constraint("Vertical", 1),
    Sketcher.Constraint("Horizontal", 2),
    Sketcher.Constraint("Vertical", 3),
    Sketcher.Constraint("Horizontal", 4),
    Sketcher.Constraint("Vertical", 5),
    Sketcher.Constraint("Horizontal", 6),
    Sketcher.Constraint("Vertical", 7),
    Sketcher.Constraint("Horizontal", 8),
    Sketcher.Constraint("Vertical", 9),
    Sketcher.Constraint("Horizontal", 10),
    Sketcher.Constraint("Vertical", 11),
    Sketcher.Constraint("Horizontal", 12),
    Sketcher.Constraint("Vertical", 13),
    Sketcher.Constraint("Horizontal", 14),
    Sketcher.Constraint("Vertical", 15),
    Sketcher.Constraint("Horizontal", 16),
    Sketcher.Constraint("Vertical", 17),
    Sketcher.Constraint("Horizontal", 18),
    Sketcher.Constraint("Vertical", 19),
    Sketcher.Constraint("Horizontal", 20),
    Sketcher.Constraint("Vertical", 21),
    Sketcher.Constraint("Horizontal", 22),
    Sketcher.Constraint("Vertical", 23),
    Sketcher.Constraint("Horizontal", 24),
    Sketcher.Constraint("Vertical", 25),
    Sketcher.Constraint("Horizontal", 26),
    Sketcher.Constraint("Vertical", 27),
    Sketcher.Constraint("Vertical", 1, 2, 4, 2),
    Sketcher.Constraint("Vertical", 3, 2, 6, 2),
    Sketcher.Constraint("Vertical", 5, 2, 8, 2),
    Sketcher.Constraint("Vertical", 7, 2, 10, 2),
    Sketcher.Constraint("Vertical", 9, 2, 12, 2),
    Sketcher.Constraint("Vertical", 11, 2, 14, 2),
    Sketcher.Constraint("Vertical", 13, 2, 16, 2),
    Sketcher.Constraint("Vertical", 15, 2, 18, 2),
    Sketcher.Constraint("Vertical", 17, 2, 20, 2),
    Sketcher.Constraint("Vertical", 19, 2, 22, 2),
    Sketcher.Constraint("Vertical", 21, 2, 24, 2),
    Sketcher.Constraint("Vertical", 23, 2, 26, 2),
    Sketcher.Constraint("Equal", 26, 1),
    Sketcher.Constraint("Equal", 3, 5),
    Sketcher.Constraint("Equal", 7, 9),
    Sketcher.Constraint("Equal", 11, 13),
    Sketcher.Constraint("Equal", 15, 17),
    Sketcher.Constraint("Equal", 19, 21),
    Sketcher.Constraint("Equal", 23, 25),
    Sketcher.Constraint("DistanceX", 0, 2, 0, 1, Q("0.025 in")),
    Sketcher.Constraint("DistanceY", 4, 2, 1, 2, Q("0.12 in")),
    Sketcher.Constraint("DistanceY", 1, 2, 8, 2, Q("0.07 in")),
    Sketcher.Constraint("DistanceY", 9, 2, 12, 2, Q("0.07 in")),
    Sketcher.Constraint("DistanceY", 13, 2, 16, 2, Q("0.07 in")),
    Sketcher.Constraint("DistanceY", 17, 2, 20, 2, Q("0.07 in")),
    Sketcher.Constraint("DistanceY", 21, 2, 24, 2, Q("0.07 in")),
    Sketcher.Constraint("DistanceX", 0, 2, -1, 1, Q("0.0625 in")),
    Sketcher.Constraint("DistanceY", -1, 1, 8, 2, Q("1.5625 in")),
])
pad10 = body.newObject("PartDesign::Pad", "Pad009")
pad10.Profile = sketch11
pad10.Length = Q("0.25 in")
pad10.Reversed = True

# Sketch on XZ plane
sketch12 = body.newObject("Sketcher::SketchObject", "Sketch011")
sketch12.AttachmentSupport = (doc.getObject("XZ_Plane"), [""])
sketch12.MapMode = "FlatFace"
sketch12.addGeometry([
    Part.LineSegment(Vector(23, 43, 0), Vector(23, 36, 0)),
    Part.LineSegment(Vector(23, 36, 0), Vector(28, 36, 0)),
    Part.LineSegment(Vector(28, 36, 0), Vector(28, 43, 0)),
    Part.LineSegment(Vector(28, 43, 0), Vector(23, 43, 0)),
], False)
sketch12.addConstraint([
    Sketcher.Constraint("Coincident", 0, 2, 1, 1),
    Sketcher.Constraint("Coincident", 1, 2, 2, 1),
    Sketcher.Constraint("Coincident", 2, 2, 3, 1),
    Sketcher.Constraint("Coincident", 3, 2, 0, 1),
    Sketcher.Constraint("Vertical", 0),
    Sketcher.Constraint("Horizontal", 1),
    Sketcher.Constraint("Vertical", 2),
    Sketcher.Constraint("Horizontal", 3),
    Sketcher.Constraint("DistanceX", 1, 1, 1, 2, Q("0.2 in")),
    Sketcher.Constraint("DistanceY", 0, 2, 0, 1, Q("0.28 in")),
    Sketcher.Constraint("DistanceX", -1, 1, 0, 2, Q("0.91 in")),
    Sketcher.Constraint("DistanceY", -1, 1, 0, 2, Q("1.41 in")),
])
pad11 = body.newObject("PartDesign::Pad", "Pad010")
pad11.Profile = sketch12
pad11.Length = Q("0.1 in")

# Sketch on YZ plane
sketch13 = body.newObject("Sketcher::SketchObject", "Sketch012")
sketch13.AttachmentSupport = (doc.getObject("YZ_Plane"), [""])
sketch13.MapMode = "FlatFace"
sketch13.AttachmentOffset = App.Placement(Vector(0, 0, 1.11 * 25.4), App.Rotation())
sketch13.addGeometry([
    Part.LineSegment(Vector(-1, 39.7, 0), Vector(-1.6, 39.7, 0)),  # 0
    Part.LineSegment(Vector(-1.6, 39.7, 0), Vector(-1.6, 39.1, 0)),  # 1
    Part.LineSegment(Vector(-1.6, 39.1, 0), Vector(-1, 39.1, 0)),  # 2
    Part.LineSegment(Vector(-1, 39.1, 0), Vector(-1, 39.7, 0)),  # 3
    Part.LineSegment(Vector(-1, 42.1, 0), Vector(-1.6, 42.1, 0)),  # 4
    Part.LineSegment(Vector(-1.6, 42.1, 0), Vector(-1.6, 41.5, 0)),  # 5
    Part.LineSegment(Vector(-1.6, 41.5, 0), Vector(-1, 41.5, 0)),  # 6
    Part.LineSegment(Vector(-1, 41.5, 0), Vector(-1, 42.1, 0)),  # 7
    Part.LineSegment(Vector(-1, 37.3, 0), Vector(-1.6, 37.3, 0)),  # 8
    Part.LineSegment(Vector(-1.6, 37.3, 0), Vector(-1.6, 36.6, 0)),  # 9
    Part.LineSegment(Vector(-1.6, 36.6, 0), Vector(-1, 36.6, 0)),  # 10
    Part.LineSegment(Vector(-1, 36.6, 0), Vector(-1, 37.3, 0)),  # 11
], False)
sketch13.addConstraint([
    Sketcher.Constraint("Coincident", 0, 2, 1, 1),
    Sketcher.Constraint("Coincident", 1, 2, 2, 1),
    Sketcher.Constraint("Coincident", 2, 2, 3, 1),
    Sketcher.Constraint("Coincident", 3, 2, 0, 1),
    Sketcher.Constraint("Coincident", 4, 2, 5, 1),
    Sketcher.Constraint("Coincident", 5, 2, 6, 1),
    Sketcher.Constraint("Coincident", 6, 2, 7, 1),
    Sketcher.Constraint("Coincident", 7, 2, 4, 1),
    Sketcher.Constraint("Coincident", 8, 2, 9, 1),
    Sketcher.Constraint("Coincident", 9, 2, 10, 1),
    Sketcher.Constraint("Coincident", 10, 2, 11, 1),
    Sketcher.Constraint("Coincident", 11, 2, 8, 1),
    Sketcher.Constraint("Horizontal", 0),
    Sketcher.Constraint("Vertical", 1),
    Sketcher.Constraint("Horizontal", 2),
    Sketcher.Constraint("Vertical", 3),
    Sketcher.Constraint("Horizontal", 4),
    Sketcher.Constraint("Vertical", 5),
    Sketcher.Constraint("Horizontal", 6),
    Sketcher.Constraint("Vertical", 7),
    Sketcher.Constraint("Horizontal", 8),
    Sketcher.Constraint("Vertical", 9),
    Sketcher.Constraint("Horizontal", 10),
    Sketcher.Constraint("Vertical", 11),
    Sketcher.Constraint("Vertical", 1, 2, 4, 2),
    Sketcher.Constraint("Vertical", 3, 2, 6, 2),
    Sketcher.Constraint("Vertical", 5, 2, 8, 2),
    Sketcher.Constraint("Vertical", 7, 2, 10, 2),
    Sketcher.Constraint("Equal", 10, 1),
    Sketcher.Constraint("Equal", 3, 5),
    Sketcher.Constraint("Equal", 7, 9),
    Sketcher.Constraint("DistanceX", 0, 2, 0, 1, Q("0.025 in")),
    Sketcher.Constraint("DistanceY", 1, 2, 4, 2, Q("0.12 in")),
    Sketcher.Constraint("DistanceY", 8, 2, 1, 2, Q("0.07 in")),
    Sketcher.Constraint("DistanceX", 0, 2, -1, 1, Q("0.0625 in")),
    Sketcher.Constraint("DistanceY", -1, 1, 0, 2, Q("1.5625 in")),
])
pad12 = body.newObject("PartDesign::Pad", "Pad011")
pad12.Profile = sketch13
pad12.Length = Q("0.25 in")

doc.recompute()
